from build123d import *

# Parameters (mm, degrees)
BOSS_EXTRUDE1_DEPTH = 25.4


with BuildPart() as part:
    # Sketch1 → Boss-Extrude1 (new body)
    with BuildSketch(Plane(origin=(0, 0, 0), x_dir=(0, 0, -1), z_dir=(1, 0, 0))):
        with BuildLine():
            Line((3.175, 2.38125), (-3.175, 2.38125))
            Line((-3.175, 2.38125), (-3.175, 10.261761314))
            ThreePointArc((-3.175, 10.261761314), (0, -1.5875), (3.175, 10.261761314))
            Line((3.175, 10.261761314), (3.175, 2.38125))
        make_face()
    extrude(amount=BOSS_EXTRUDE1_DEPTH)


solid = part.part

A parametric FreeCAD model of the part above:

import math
import FreeCAD as App
import Part
import Sketcher

V = App.Vector
Q = App.Units.Quantity

doc = App.newDocument("Part")
body = doc.addObject("PartDesign::Body", "Body")

sketch1 = body.newObject("Sketcher::SketchObject", "Sketch")
sketch1.AttachmentSupport = (doc.getObject("YZ_Plane"), [""])
sketch1.MapMode = "FlatFace"
sketch1.addGeometry(Part.LineSegment(V(2.38125, -3.175, 0), V(2.38125, 3.175, 0)), False)
sketch1.addGeometry(Part.LineSegment(V(2.38125, 3.175, 0), V(10.261761, 3.175, 0)), False)
sketch1.addGeometry(Part.ArcOfCircle(Part.Circle(V(4.7625, 0, 0), V(0, 0, 1), 6.35), math.radians(30), math.radians(330)), False)
sketch1.addGeometry(Part.LineSegment(V(10.261761, -3.175, 0), V(2.38125, -3.175, 0)), False)
sketch1.addConstraint(Sketcher.Constraint("Coincident", 0, 2, 1, 1))
sketch1.addConstraint(Sketcher.Constraint("Coincident", 1, 2, 2, 1))
sketch1.addConstraint(Sketcher.Constraint("Coincident", 2, 2, 3, 1))
sketch1.addConstraint(Sketcher.Constraint("Coincident", 3, 2, 0, 1))
sketch1.addConstraint(Sketcher.Constraint("Vertical", 0))
sketch1.addConstraint(Sketcher.Constraint("Horizontal", 1))
sketch1.addConstraint(Sketcher.Constraint("Horizontal", 3))
sketch1.addConstraint(Sketcher.Constraint("Symmetric", 1, 2, 2, 2, -1))
sketch1.addConstraint(Sketcher.Constraint("Radius", 2, Q("0.25 in")))
sketch1.addConstraint(Sketcher.Constraint("DistanceY", 0, 1, 0, 2, Q("0.25 in")))
sketch1.addConstraint(Sketcher.Constraint("DistanceX", -1, 1, 2, 3, Q("0.1875 in")))
sketch1.addConstraint(Sketcher.Constraint("DistanceX", -1, 1, 0, 2, Q("0.09375 in")))
pad1 = body.newObject("PartDesign::Pad", "Pad")
pad1.Profile = sketch1
pad1.Length = Q("1 in")

doc.recompute()
